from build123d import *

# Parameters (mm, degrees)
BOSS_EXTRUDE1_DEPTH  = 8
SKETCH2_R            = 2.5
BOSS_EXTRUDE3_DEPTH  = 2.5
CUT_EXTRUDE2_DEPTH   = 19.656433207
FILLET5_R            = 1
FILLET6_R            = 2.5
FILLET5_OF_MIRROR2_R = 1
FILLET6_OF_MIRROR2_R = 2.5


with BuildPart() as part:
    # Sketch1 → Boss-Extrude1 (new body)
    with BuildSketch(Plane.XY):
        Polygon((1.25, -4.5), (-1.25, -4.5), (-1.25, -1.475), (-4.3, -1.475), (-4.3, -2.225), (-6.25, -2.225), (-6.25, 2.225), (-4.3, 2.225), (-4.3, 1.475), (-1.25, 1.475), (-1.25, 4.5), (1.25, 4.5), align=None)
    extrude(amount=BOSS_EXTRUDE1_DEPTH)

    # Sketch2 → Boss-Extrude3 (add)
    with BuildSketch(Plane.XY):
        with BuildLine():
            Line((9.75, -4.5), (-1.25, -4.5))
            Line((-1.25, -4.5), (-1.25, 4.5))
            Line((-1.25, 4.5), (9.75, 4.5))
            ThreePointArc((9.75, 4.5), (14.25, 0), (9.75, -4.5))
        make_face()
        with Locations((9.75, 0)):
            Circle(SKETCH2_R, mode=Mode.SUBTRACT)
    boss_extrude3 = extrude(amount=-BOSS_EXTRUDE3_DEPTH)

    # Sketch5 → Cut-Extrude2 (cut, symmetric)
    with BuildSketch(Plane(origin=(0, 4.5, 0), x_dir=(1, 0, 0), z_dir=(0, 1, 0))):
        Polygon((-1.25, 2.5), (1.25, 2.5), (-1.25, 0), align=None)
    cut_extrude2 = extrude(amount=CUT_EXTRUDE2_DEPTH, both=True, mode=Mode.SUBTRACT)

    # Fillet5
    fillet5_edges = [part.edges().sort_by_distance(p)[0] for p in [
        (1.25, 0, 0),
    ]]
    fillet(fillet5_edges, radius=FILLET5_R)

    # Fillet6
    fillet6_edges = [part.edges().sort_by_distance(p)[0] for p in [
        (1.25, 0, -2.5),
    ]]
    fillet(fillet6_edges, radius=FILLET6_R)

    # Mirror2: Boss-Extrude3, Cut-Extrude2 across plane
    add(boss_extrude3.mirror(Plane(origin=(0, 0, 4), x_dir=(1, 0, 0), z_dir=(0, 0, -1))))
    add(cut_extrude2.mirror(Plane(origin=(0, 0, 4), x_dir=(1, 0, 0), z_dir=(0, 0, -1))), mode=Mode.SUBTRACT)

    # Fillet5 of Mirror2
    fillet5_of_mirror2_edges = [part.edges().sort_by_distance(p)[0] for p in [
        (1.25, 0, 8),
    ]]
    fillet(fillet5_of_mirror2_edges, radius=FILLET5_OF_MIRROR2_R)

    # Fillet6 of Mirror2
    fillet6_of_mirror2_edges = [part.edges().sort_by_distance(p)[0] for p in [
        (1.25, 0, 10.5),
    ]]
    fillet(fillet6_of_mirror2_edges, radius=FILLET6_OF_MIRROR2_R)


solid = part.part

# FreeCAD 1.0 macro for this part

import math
import FreeCAD as App
import Part
import Sketcher

V = App.Vector


def edges_at(feature, points):
    """Names of the edges that pass closest to the given points."""
    edges = feature.Shape.Edges
    near = lambda p: min(range(len(edges)), key=lambda i: edges[i].distToShape(Part.Vertex(*p))[0])
    return sorted({f"Edge{near(p) + 1}" for p in points})

doc = App.newDocument("Part")
body = doc.addObject("PartDesign::Body", "Body")

sketch1 = body.newObject("Sketcher::SketchObject", "Sketch")
sketch1.AttachmentSupport = (doc.getObject("XY_Plane"), [""])
sketch1.MapMode = "FlatFace"
sketch1.addGeometry(Part.LineSegment(V(-1.2, -4.5, 0), V(1.2, -4.5, 0)), False)
sketch1.addGeometry(Part.LineSegment(V(1.2, -4.5, 0), V(1.2, 4.5, 0)), False)
sketch1.addGeometry(Part.LineSegment(V(1.2, 4.5, 0), V(-1.2, 4.5, 0)), False)
sketch1.addGeometry(Part.LineSegment(V(-1.2, 4.5, 0), V(-1.2, 1.5, 0)), False)
sketch1.addGeometry(Part.LineSegment(V(-1.2, 1.5, 0), V(-4.3, 1.5, 0)), False)
sketch1.addGeometry(Part.LineSegment(V(-4.3, 1.5, 0), V(-4.3, 2.2, 0)), False)
sketch1.addGeometry(Part.LineSegment(V(-4.3, 2.2, 0), V(-6.2, 2.2, 0)), False)
sketch1.addGeometry(Part.LineSegment(V(-6.2, 2.2, 0), V(-6.2, -2.2, 0)), False)
sketch1.addGeometry(Part.LineSegment(V(-6.2, -2.2, 0), V(-4.3, -2.2, 0)), False)
sketch1.addGeometry(Part.LineSegment(V(-4.3, -2.2, 0), V(-4.3, -1.5, 0)), False)
sketch1.addGeometry(Part.LineSegment(V(-4.3, -1.5, 0), V(-1.2, -1.5, 0)), False)
sketch1.addGeometry(Part.LineSegment(V(-1.2, -1.5, 0), V(-1.2, -4.5, 0)), False)
sketch1.addConstraint(Sketcher.Constraint("Coincident", 0, 2, 1, 1))
sketch1.addConstraint(Sketcher.Constraint("Coincident", 1, 2, 2, 1))
sketch1.addConstraint(Sketcher.Constraint("Coincident", 2, 2, 3, 1))
sketch1.addConstraint(Sketcher.Constraint("Coincident", 3, 2, 4, 1))
sketch1.addConstraint(Sketcher.Constraint("Coincident", 4, 2, 5, 1))
sketch1.addConstraint(Sketcher.Constraint("Coincident", 5, 2, 6, 1))
sketch1.addConstraint(Sketcher.Constraint("Coincident", 6, 2, 7, 1))
sketch1.addConstraint(Sketcher.Constraint("Coincident", 7, 2, 8, 1))
sketch1.addConstraint(Sketcher.Constraint("Coincident", 8, 2, 9, 1))
sketch1.addConstraint(Sketcher.Constraint("Coincident", 9, 2, 10, 1))
sketch1.addConstraint(Sketcher.Constraint("Coincident", 10, 2, 11, 1))
sketch1.addConstraint(Sketcher.Constraint("Coincident", 11, 2, 0, 1))
sketch1.addConstraint(Sketcher.Constraint("Horizontal", 0))
sketch1.addConstraint(Sketcher.Constraint("Vertical", 1))
sketch1.addConstraint(Sketcher.Constraint("Horizontal", 2))
sketch1.addConstraint(Sketcher.Constraint("Vertical", 3))
sketch1.addConstraint(Sketcher.Constraint("Horizontal", 4))
sketch1.addConstraint(Sketcher.Constraint("Vertical", 5))
sketch1.addConstraint(Sketcher.Constraint("Horizontal", 6))
sketch1.addConstraint(Sketcher.Constraint("Vertical", 7))
sketch1.addConstraint(Sketcher.Constraint("Horizontal", 8))
sketch1.addConstraint(Sketcher.Constraint("Vertical", 9))
sketch1.addConstraint(Sketcher.Constraint("Horizontal", 10))
sketch1.addConstraint(Sketcher.Constraint("Vertical", 11))
sketch1.addConstraint(Sketcher.Constraint("Symmetric", 0, 2, 2, 2, -1, 1))
sketch1.addConstraint(Sketcher.Constraint("Symmetric", 5, 2, 8, 2, -1))
sketch1.addConstraint(Sketcher.Constraint("Symmetric", 3, 2, 10, 2, -1))
sketch1.addConstraint(Sketcher.Constraint("DistanceY", 1, 1, 1, 2, 9.0))
sketch1.addConstraint(Sketcher.Constraint("DistanceX", 0, 1, 0, 2, 2.5))
sketch1.addConstraint(Sketcher.Constraint("DistanceX", 6, 2, 3, 2, 5.0))
sketch1.addConstraint(Sketcher.Constraint("DistanceX", 4, 2, 4, 1, 3.05))
sketch1.addConstraint(Sketcher.Constraint("DistanceY", 5, 1, 5, 2, 0.75))
sketch1.addConstraint(Sketcher.Constraint("DistanceY", 7, 2, 7, 1, 4.45))
pad1 = body.newObject("PartDesign::Pad", "Pad")
pad1.Profile = sketch1
pad1.Length = 8

sketch2 = body.newObject("Sketcher::SketchObject", "Sketch001")
sketch2.AttachmentSupport = (doc.getObject("XY_Plane"), [""])
sketch2.MapMode = "FlatFace"
sketch2.addGeometry(Part.LineSegment(V(-1.2, -4.5, 0), V(9.8, -4.5, 0)), False)
sketch2.addGeometry(Part.ArcOfCircle(Part.Circle(V(9.8, 0, 0), V(0, 0, 1), 4.5), math.radians(-90), math.radians(90)), False)
sketch2.addGeometry(Part.LineSegment(V(9.8, 4.5, 0), V(-1.2, 4.5, 0)), False)
sketch2.addGeometry(Part.LineSegment(V(-1.2, 4.5, 0), V(-1.2, -4.5, 0)), False)
sketch2.addGeometry(Part.Circle(V(9.8, 0, 0), V(0, 0, 1), 2.5), False)
sketch2.addConstraint(Sketcher.Constraint("Tangent", 0, 2, 1, 1))
sketch2.addConstraint(Sketcher.Constraint("Tangent", 1, 2, 2, 1))
sketch2.addConstraint(Sketcher.Constraint("Coincident", 2, 2, 3, 1))
sketch2.addConstraint(Sketcher.Constraint("Coincident", 3, 2, 0, 1))
sketch2.addConstraint(Sketcher.Constraint("Horizontal", 0))
sketch2.addConstraint(Sketcher.Constraint("Horizontal", 2))
sketch2.addConstraint(Sketcher.Constraint("Vertical", 3))
sketch2.addConstraint(Sketcher.Constraint("Coincident", 4, 3, 1, 3))
sketch2.addConstraint(Sketcher.Constraint("PointOnObject", 1, 3, -1))
sketch2.addConstraint(Sketcher.Constraint("Diameter", 4, 5.0))
sketch2.addConstraint(Sketcher.Constraint("Radius", 1, 4.5))
sketch2.addConstraint(Sketcher.Constraint("DistanceX", 0, 1, 0, 2, 11.0))
sketch2.addConstraint(Sketcher.Constraint("DistanceX", -1, 1, 1, 3, 9.75))
pad2 = body.newObject("PartDesign::Pad", "Pad001")
pad2.Profile = sketch2
pad2.Length = 2.5
pad2.Reversed = True

sketch3 = body.newObject("Sketcher::SketchObject", "Sketch002")
sketch3.AttachmentSupport = (doc.getObject("XZ_Plane"), [""])
sketch3.MapMode = "FlatFace"
sketch3.AttachmentOffset = App.Placement(V(0, 0, -4.5), App.Rotation())
sketch3.addGeometry(Part.LineSegment(V(1.2, -2.5, 0), V(-1.2, -2.5, 0)), False)
sketch3.addGeometry(Part.LineSegment(V(-1.2, -2.5, 0), V(-1.2, 0, 0)), False)
sketch3.addGeometry(Part.LineSegment(V(-1.2, 0, 0), V(1.2, -2.5, 0)), False)
sketch3.addConstraint(Sketcher.Constraint("Coincident", 0, 2, 1, 1))
sketch3.addConstraint(Sketcher.Constraint("Coincident", 1, 2, 2, 1))
sketch3.addConstraint(Sketcher.Constraint("Coincident", 2, 2, 0, 1))
sketch3.addConstraint(Sketcher.Constraint("Horizontal", 0))
sketch3.addConstraint(Sketcher.Constraint("Vertical", 1))
sketch3.addConstraint(Sketcher.Constraint("PointOnObject", 1, 2, -1))
sketch3.addConstraint(Sketcher.Constraint("Equal", 0, 1))
sketch3.addConstraint(Sketcher.Constraint("DistanceX", 0, 2, 0, 1, 2.5))
sketch3.addConstraint(Sketcher.Constraint("DistanceX", 0, 2, -1, 1, 1.25))
pocket1 = body.newObject("PartDesign::Pocket", "Pocket")
pocket1.Profile = sketch3
pocket1.Length = 39.312866
pocket1.Midplane = True
doc.recompute()

fillet = body.newObject("PartDesign::Fillet", "Fillet")
fillet.Base = (pocket1, edges_at(pocket1, [(1.25, 0, 0)]))
fillet.Radius = 1
doc.recompute()

fillet2 = body.newObject("PartDesign::Fillet", "Fillet001")
fillet2.Base = (fillet, edges_at(fillet, [(1.25, 0, -2.5)]))
fillet2.Radius = 2.5
doc.recompute()

datumplane = body.newObject("PartDesign::Plane", "DatumPlane")
datumplane.AttachmentSupport = (doc.getObject("XY_Plane"), [""])
datumplane.MapMode = "FlatFace"
datumplane.AttachmentOffset = App.Placement(V(0, 0, 4), App.Rotation())
mirrored = body.newObject("PartDesign::Mirrored", "Mirrored")
mirrored.Originals = [pad2, pocket1]
mirrored.MirrorPlane = (datumplane, [""])
body.Tip = mirrored
doc.recompute()

fillet3 = body.newObject("PartDesign::Fillet", "Fillet002")
fillet3.Base = (mirrored, edges_at(mirrored, [(1.25, 0, 8)]))
fillet3.Radius = 1
doc.recompute()

fillet4 = body.newObject("PartDesign::Fillet", "Fillet003")
fillet4.Base = (fillet3, edges_at(fillet3, [(1.25, 0, 10.5)]))
fillet4.Radius = 2.5

doc.recompute()
